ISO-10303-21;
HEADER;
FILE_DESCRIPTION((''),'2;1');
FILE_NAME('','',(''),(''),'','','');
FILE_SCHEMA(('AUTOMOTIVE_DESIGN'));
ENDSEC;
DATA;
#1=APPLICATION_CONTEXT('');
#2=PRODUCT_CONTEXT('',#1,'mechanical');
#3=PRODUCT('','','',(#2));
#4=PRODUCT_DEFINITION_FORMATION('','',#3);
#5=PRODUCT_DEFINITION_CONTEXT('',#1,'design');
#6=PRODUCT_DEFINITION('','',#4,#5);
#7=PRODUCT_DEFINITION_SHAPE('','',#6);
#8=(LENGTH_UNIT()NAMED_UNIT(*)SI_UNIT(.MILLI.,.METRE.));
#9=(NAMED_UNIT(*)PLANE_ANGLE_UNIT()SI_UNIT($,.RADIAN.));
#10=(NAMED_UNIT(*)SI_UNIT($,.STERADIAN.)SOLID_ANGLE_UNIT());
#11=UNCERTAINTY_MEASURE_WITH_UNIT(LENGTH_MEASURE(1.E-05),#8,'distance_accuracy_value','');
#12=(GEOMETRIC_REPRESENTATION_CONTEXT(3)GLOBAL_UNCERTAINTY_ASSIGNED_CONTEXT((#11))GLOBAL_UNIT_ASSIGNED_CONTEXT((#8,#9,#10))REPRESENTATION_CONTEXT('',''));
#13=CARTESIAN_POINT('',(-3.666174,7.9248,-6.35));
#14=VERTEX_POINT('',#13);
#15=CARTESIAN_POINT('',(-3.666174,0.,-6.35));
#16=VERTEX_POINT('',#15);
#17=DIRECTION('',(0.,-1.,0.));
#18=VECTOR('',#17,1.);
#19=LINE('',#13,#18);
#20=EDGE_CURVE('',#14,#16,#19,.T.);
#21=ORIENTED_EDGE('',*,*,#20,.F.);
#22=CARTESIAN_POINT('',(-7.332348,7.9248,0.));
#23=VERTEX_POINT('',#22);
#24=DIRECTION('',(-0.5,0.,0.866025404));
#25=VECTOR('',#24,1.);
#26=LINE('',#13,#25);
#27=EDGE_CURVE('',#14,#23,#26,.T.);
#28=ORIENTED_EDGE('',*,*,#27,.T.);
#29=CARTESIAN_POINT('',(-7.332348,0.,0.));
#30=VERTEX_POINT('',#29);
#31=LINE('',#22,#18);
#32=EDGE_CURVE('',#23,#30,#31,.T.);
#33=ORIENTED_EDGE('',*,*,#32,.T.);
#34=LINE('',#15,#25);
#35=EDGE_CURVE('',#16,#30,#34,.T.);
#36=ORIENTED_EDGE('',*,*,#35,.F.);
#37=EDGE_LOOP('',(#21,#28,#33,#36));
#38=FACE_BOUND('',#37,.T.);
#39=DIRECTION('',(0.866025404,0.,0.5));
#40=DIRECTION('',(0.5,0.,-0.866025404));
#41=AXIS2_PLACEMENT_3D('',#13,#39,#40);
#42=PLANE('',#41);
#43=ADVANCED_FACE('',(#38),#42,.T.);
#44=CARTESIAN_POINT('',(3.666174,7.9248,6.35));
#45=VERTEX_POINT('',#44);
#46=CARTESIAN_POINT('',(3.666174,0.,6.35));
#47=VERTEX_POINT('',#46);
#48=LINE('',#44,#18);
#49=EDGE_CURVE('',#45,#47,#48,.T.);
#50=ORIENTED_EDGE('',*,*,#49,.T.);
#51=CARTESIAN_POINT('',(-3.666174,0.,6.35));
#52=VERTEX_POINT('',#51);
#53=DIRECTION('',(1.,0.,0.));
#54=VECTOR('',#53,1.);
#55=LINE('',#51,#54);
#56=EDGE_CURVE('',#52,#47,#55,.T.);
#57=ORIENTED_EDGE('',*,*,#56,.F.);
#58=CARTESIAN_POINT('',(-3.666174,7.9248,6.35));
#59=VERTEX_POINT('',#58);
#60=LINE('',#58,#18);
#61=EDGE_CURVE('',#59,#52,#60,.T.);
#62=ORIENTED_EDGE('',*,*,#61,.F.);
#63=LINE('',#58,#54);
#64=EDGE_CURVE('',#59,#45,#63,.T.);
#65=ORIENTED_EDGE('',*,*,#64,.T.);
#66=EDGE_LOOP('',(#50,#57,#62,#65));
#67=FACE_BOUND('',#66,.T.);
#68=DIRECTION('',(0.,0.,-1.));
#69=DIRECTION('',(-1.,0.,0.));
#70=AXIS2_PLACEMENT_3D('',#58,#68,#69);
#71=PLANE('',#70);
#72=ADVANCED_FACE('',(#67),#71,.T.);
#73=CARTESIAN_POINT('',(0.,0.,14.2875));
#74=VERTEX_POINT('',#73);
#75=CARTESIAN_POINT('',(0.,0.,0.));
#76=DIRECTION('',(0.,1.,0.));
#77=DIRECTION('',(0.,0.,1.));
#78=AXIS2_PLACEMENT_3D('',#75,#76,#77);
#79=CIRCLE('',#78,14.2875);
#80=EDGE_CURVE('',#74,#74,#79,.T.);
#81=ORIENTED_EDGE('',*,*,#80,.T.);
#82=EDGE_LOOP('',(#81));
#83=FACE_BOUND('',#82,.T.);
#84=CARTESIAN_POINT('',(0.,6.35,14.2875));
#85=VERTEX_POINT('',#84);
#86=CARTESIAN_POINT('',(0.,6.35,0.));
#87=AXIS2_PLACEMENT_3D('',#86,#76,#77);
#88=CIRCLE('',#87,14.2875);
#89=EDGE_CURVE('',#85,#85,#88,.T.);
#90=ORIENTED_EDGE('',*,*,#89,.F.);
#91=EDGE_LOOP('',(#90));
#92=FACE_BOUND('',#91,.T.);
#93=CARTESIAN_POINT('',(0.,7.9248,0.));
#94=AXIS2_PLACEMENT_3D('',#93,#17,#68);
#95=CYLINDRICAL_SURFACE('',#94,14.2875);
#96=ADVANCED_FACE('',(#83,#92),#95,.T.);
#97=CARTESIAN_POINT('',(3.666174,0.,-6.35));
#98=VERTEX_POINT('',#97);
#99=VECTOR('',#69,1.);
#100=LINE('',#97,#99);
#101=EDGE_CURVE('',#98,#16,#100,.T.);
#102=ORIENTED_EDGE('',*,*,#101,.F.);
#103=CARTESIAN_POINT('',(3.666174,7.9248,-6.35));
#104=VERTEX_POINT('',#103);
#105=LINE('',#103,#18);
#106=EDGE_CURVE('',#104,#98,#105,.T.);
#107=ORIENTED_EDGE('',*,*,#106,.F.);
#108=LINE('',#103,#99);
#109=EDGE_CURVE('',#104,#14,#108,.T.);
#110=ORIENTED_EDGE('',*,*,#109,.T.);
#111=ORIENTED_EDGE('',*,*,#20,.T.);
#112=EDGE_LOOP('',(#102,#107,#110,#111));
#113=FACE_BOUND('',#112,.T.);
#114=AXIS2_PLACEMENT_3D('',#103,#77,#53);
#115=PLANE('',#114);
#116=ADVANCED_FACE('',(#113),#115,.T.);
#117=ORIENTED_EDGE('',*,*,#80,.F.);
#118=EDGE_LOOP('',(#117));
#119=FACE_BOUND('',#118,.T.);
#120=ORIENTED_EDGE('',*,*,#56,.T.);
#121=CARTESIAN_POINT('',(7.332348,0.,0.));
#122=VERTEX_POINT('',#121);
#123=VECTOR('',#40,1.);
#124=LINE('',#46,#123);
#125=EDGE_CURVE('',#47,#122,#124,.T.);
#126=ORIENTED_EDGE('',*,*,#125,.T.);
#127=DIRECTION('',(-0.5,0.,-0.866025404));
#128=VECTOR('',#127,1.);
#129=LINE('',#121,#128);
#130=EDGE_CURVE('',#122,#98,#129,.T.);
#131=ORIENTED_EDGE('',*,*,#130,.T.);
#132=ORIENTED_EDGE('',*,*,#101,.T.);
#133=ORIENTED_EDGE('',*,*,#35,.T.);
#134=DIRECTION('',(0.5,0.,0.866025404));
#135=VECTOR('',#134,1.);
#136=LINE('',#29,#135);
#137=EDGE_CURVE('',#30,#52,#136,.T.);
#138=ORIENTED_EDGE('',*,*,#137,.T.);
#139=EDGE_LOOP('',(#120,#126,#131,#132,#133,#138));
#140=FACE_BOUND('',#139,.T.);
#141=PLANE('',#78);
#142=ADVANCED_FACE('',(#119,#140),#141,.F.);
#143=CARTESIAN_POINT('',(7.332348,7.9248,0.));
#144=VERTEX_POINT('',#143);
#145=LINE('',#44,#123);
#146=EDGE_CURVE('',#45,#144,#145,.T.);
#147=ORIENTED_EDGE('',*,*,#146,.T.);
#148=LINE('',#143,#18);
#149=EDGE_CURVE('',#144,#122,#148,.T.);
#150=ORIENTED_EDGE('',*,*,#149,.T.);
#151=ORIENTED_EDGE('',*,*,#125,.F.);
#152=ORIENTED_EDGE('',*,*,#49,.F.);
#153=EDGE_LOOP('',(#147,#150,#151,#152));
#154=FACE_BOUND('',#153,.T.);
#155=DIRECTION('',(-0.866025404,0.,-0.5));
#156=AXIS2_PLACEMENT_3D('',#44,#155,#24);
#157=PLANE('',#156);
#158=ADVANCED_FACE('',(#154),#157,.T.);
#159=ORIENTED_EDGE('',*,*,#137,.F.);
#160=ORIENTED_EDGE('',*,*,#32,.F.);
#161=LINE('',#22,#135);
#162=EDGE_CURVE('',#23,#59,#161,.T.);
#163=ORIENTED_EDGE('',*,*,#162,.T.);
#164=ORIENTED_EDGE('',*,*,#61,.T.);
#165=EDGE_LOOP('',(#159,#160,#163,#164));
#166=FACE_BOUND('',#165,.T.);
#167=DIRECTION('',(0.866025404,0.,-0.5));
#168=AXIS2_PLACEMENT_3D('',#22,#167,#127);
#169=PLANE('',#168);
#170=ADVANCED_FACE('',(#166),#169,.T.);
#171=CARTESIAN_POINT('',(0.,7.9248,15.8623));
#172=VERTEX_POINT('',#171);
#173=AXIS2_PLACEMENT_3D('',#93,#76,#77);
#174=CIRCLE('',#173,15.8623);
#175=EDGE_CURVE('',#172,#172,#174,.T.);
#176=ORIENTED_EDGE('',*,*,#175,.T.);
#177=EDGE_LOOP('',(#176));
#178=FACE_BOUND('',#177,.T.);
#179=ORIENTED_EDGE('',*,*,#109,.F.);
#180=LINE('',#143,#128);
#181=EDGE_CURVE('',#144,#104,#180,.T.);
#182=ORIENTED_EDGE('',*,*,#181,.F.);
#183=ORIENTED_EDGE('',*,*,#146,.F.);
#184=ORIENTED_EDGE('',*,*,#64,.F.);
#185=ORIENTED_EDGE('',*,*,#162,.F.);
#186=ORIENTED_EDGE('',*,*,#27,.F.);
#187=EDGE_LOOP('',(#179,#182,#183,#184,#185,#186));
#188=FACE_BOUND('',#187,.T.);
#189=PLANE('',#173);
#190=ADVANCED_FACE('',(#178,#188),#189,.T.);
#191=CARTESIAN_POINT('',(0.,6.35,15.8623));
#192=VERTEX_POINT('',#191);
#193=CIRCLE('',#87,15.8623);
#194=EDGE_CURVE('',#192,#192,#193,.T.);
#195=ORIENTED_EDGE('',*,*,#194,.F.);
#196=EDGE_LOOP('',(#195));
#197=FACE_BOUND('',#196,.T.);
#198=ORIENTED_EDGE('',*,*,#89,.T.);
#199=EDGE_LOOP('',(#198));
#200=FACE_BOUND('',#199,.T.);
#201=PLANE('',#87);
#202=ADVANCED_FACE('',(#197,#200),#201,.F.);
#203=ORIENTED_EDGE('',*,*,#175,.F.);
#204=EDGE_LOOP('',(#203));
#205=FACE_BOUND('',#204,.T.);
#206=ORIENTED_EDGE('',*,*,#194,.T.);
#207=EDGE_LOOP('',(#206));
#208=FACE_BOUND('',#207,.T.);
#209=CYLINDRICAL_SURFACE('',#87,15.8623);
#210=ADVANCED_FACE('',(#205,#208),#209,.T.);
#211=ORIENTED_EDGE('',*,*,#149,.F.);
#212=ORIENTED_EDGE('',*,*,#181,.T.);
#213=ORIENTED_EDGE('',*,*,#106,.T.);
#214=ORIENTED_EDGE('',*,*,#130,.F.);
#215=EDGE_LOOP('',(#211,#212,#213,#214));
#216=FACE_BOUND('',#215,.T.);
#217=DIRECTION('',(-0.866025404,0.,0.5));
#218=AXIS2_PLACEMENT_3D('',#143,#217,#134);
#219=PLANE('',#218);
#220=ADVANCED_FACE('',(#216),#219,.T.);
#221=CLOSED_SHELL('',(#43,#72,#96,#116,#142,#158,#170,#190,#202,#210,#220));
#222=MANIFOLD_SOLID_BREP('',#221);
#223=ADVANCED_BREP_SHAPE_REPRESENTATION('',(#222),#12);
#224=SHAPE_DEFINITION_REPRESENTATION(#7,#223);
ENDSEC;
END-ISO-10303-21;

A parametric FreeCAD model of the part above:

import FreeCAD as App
import Part
import Sketcher
from FreeCAD import Vector
Q = App.Units.Quantity

doc = App.newDocument("Part")
body = doc.addObject("PartDesign::Body", "Body")

# Sketch on XZ plane
sketch1 = body.newObject("Sketcher::SketchObject", "Sketch")
sketch1.AttachmentSupport = (doc.getObject("XZ_Plane"), [""])
sketch1.MapMode = "FlatFace"
sketch1.addGeometry([
    Part.Circle(Vector(0, 0, 0), Vector(0, 0, 1), 14),  # 0
    Part.LineSegment(Vector(-7, 0, 0), Vector(-4, -6, 0)),  # 1
    Part.LineSegment(Vector(-4, -6, 0), Vector(4, -6, 0)),  # 2
    Part.LineSegment(Vector(4, -6, 0), Vector(7, 0, 0)),  # 3
    Part.LineSegment(Vector(7, 0, 0), Vector(4, 6, 0)),  # 4
    Part.LineSegment(Vector(4, 6, 0), Vector(-4, 6, 0)),  # 5
    Part.LineSegment(Vector(-4, 6, 0), Vector(-7, 0, 0)),  # 6
], False)
sketch1.addConstraint([
    Sketcher.Constraint("Coincident", 1, 2, 2, 1),
    Sketcher.Constraint("Coincident", 2, 2, 3, 1),
    Sketcher.Constraint("Coincident", 3, 2, 4, 1),
    Sketcher.Constraint("Coincident", 4, 2, 5, 1),
    Sketcher.Constraint("Coincident", 5, 2, 6, 1),
    Sketcher.Constraint("Coincident", 6, 2, 1, 1),
    Sketcher.Constraint("Horizontal", 2),
    Sketcher.Constraint("Horizontal", 5),
    Sketcher.Constraint("Coincident", 0, 3, -1, 1),
    Sketcher.Constraint("Symmetric", 1, 2, 4, 2, -1, 1),
    Sketcher.Constraint("Symmetric", 3, 2, 6, 2, -1, 1),
    Sketcher.Constraint("PointOnObject", 3, 2, -1),
    Sketcher.Constraint("Parallel", 3, 6),
    Sketcher.Constraint("Vertical", 2, 2, 4, 2),
    Sketcher.Constraint("Diameter", 0, Q("1.125 in")),
    Sketcher.Constraint("Angle", 1, Q("-60 deg")),
    Sketcher.Constraint("DistanceY", 2, 2, 4, 2, Q("0.5 in")),
    Sketcher.Constraint("DistanceX", 2, 1, 2, 2, 7.332348),
])
pad1 = body.newObject("PartDesign::Pad", "Pad")
pad1.Profile = sketch1
pad1.Length = Q("0.312 in")
pad1.Reversed = True

# Sketch on XZ plane
sketch2 = body.newObject("Sketcher::SketchObject", "Sketch001")
sketch2.AttachmentSupport = (doc.getObject("XZ_Plane"), [""])
sketch2.MapMode = "FlatFace"
sketch2.AttachmentOffset = App.Placement(Vector(0, 0, -0.312 * 25.4), App.Rotation())
sketch2.addGeometry([
    Part.Circle(Vector(0, 0, 0), Vector(0, 0, 1), 16),
    Part.Circle(Vector(0, 0, 0), Vector(0, 0, 1), 14),
], False)
sketch2.addConstraint([
    Sketcher.Constraint("Coincident", 0, 3, -1, 1),
    Sketcher.Constraint("Coincident", 1, 3, -1, 1),
    Sketcher.Constraint("Diameter", 0, Q("1.249 in")),
    Sketcher.Constraint("Diameter", 1, Q("1.125 in")),
])
pad2 = body.newObject("PartDesign::Pad", "Pad001")
pad2.Profile = sketch2
pad2.Length = Q("0.062 in")

doc.recompute()
